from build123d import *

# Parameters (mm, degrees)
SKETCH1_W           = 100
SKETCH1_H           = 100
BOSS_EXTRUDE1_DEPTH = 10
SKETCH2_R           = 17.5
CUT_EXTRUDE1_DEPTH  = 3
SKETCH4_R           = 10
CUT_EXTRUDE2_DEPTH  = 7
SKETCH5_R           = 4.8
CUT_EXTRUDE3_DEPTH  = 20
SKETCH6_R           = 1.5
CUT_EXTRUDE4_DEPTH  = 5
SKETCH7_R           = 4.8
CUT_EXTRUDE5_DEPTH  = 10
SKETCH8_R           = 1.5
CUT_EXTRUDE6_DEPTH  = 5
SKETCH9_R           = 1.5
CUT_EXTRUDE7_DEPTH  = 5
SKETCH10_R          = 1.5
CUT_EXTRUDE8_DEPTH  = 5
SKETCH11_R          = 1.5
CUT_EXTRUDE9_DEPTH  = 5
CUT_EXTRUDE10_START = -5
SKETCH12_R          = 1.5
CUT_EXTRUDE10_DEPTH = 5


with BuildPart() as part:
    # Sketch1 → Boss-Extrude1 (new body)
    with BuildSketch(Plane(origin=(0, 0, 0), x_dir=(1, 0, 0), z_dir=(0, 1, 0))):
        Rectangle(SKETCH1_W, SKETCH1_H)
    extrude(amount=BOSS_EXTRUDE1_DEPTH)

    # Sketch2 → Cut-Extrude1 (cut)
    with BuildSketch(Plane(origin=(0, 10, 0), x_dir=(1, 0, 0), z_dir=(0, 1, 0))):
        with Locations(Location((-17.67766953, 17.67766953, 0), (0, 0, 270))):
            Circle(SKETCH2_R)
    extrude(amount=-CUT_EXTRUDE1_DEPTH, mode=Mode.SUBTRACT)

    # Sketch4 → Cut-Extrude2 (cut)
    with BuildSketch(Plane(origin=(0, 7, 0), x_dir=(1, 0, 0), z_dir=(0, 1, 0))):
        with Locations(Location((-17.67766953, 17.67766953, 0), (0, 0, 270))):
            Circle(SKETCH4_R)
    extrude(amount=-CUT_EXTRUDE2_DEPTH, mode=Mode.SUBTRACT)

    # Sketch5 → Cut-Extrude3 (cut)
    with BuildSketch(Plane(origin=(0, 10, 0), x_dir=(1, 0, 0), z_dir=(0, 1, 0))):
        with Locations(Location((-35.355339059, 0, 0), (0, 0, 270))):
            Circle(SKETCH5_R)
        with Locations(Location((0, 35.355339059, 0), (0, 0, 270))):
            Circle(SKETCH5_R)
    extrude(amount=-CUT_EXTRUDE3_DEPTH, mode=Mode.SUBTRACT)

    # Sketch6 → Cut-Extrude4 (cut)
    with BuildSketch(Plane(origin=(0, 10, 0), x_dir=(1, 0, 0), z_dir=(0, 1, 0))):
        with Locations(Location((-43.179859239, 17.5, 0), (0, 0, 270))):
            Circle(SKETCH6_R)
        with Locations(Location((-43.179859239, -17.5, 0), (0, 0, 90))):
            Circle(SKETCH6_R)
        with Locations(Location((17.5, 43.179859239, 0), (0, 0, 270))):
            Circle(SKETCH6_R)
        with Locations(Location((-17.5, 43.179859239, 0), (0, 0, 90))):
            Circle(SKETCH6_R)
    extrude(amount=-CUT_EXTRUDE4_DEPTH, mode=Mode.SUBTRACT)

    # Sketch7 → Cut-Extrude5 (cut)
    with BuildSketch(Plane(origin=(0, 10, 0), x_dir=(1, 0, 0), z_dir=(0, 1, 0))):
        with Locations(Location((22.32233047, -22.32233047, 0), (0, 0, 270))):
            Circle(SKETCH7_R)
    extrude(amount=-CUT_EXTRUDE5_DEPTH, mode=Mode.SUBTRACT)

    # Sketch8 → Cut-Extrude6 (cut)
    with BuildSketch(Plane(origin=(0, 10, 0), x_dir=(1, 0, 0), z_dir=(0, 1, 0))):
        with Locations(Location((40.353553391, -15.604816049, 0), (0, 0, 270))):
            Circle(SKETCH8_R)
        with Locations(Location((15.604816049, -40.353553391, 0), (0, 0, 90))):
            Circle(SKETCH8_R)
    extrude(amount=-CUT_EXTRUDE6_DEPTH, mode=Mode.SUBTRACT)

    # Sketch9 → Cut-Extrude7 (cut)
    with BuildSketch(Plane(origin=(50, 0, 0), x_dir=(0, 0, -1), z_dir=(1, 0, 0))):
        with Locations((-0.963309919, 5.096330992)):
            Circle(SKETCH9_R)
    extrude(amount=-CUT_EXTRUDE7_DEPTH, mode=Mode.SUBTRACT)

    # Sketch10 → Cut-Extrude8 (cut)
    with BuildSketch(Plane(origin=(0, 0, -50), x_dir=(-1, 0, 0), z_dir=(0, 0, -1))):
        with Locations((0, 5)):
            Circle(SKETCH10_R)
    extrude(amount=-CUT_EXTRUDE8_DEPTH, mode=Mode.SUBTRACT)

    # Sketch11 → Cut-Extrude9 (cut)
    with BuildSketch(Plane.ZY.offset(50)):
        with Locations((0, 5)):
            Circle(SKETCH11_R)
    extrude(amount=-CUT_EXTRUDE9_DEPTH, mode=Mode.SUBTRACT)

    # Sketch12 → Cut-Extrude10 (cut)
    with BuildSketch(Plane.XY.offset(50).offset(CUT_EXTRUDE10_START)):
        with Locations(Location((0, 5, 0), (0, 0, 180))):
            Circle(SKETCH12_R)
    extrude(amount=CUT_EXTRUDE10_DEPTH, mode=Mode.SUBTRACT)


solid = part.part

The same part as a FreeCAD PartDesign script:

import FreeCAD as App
import Part
import Sketcher
from FreeCAD import Vector


def add_polygon(sketch, points):
    """Adds a closed chain of lines whose ends are joined by coincident constraints."""
    first, n = sketch.GeometryCount, len(points)
    for a, b in zip(points, points[1:] + points[:1]):
        sketch.addGeometry(Part.LineSegment(App.Vector(*a, 0), App.Vector(*b, 0)), False)
    for i in range(n):
        sketch.addConstraint(Sketcher.Constraint("Coincident", first + i, 2, first + (i + 1) % n, 1))

doc = App.newDocument("Part")
params = doc.addObject("Spreadsheet::Sheet", "Params")
for row, (alias, value) in enumerate([
    ("sketch1_width", "100 mm"),
    ("pad1_length", "10 mm"),
    ("sketch2_diameter", "35 mm"),
    ("pocket1_length", "3 mm"),
    ("sketch3_diameter", "20 mm"),
    ("pocket2_length", "7 mm"),
    ("sketch4_diameter", "9.6 mm"),
    ("pocket3_length", "20 mm"),
    ("sketch5_diameter", "3 mm"),
    ("pocket4_length", "5 mm"),
    ("sketch6_diameter", "9.6 mm"),
    ("pocket5_length", "10 mm"),
    ("sketch7_diameter", "3 mm"),
    ("pocket6_length", "5 mm"),
    ("sketch8_diameter", "3 mm"),
    ("pocket7_length", "5 mm"),
    ("sketch9_diameter", "3 mm"),
    ("pocket8_length", "5 mm"),
    ("sketch10_diameter", "3 mm"),
    ("pocket9_length", "5 mm"),
    ("sketch11_diameter", "3 mm"),
    ("pocket10_length", "5 mm"),
], start=1):
    params.set(f"A{row}", alias)
    params.set(f"B{row}", "=" + value)
    params.setAlias(f"B{row}", alias)

body = doc.addObject("PartDesign::Body", "Body")

# Sketch on XZ plane
sketch1 = doc.addObject("Sketcher::SketchObject", "Sketch")
body.addObject(sketch1)
sketch1.AttachmentSupport = (doc.XZ_Plane, [""])
sketch1.MapMode = "FlatFace"
add_polygon(sketch1, [(-50, -50), (-50, 50), (50, 50), (50, -50)])  # lines 0-3
sketch1.addConstraint(Sketcher.Constraint("Vertical", 0))
sketch1.addConstraint(Sketcher.Constraint("Horizontal", 1))
sketch1.addConstraint(Sketcher.Constraint("Vertical", 2))
sketch1.addConstraint(Sketcher.Constraint("Horizontal", 3))
sketch1.addConstraint(Sketcher.Constraint("Symmetric", 0, 2, 2, 2, -1, 1))
sketch1.addConstraint(Sketcher.Constraint("Equal", 3, 0))
sketch1.addConstraint(Sketcher.Constraint("DistanceX", 1, 1, 1, 2, 100.0))
sketch1.setExpression("Constraints[10]", "Params.sketch1_width")
pad1 = doc.addObject("PartDesign::Pad", "Pad")
body.addObject(pad1)
pad1.Profile = sketch1
pad1.setExpression("Length", "Params.pad1_length")
pad1.Reversed = True

# Sketch on XZ plane
sketch2 = doc.addObject("Sketcher::SketchObject", "Sketch001")
body.addObject(sketch2)
sketch2.AttachmentSupport = (doc.XZ_Plane, [""])
sketch2.MapMode = "FlatFace"
sketch2.AttachmentOffset = App.Placement(Vector(0, 0, -10), App.Rotation())
sketch2.addGeometry(Part.Circle(Vector(-18, -18, 0), Vector(0, 0, 1), 18), False)
sketch2.addConstraint(Sketcher.Constraint("Diameter", 0, 35.0))
sketch2.addConstraint(Sketcher.Constraint("DistanceX", 0, 3, -1, 1, 17.67767))
sketch2.addConstraint(Sketcher.Constraint("DistanceY", 0, 3, -1, 1, 17.67767))
sketch2.setExpression("Constraints[0]", "Params.sketch2_diameter")
pocket1 = doc.addObject("PartDesign::Pocket", "Pocket")
body.addObject(pocket1)
pocket1.Profile = sketch2
pocket1.setExpression("Length", "Params.pocket1_length")
pocket1.Reversed = True

# Sketch on XZ plane
sketch3 = doc.addObject("Sketcher::SketchObject", "Sketch002")
body.addObject(sketch3)
sketch3.AttachmentSupport = (doc.XZ_Plane, [""])
sketch3.MapMode = "FlatFace"
sketch3.AttachmentOffset = App.Placement(Vector(0, 0, -7), App.Rotation())
sketch3.addGeometry(Part.Circle(Vector(-18, -18, 0), Vector(0, 0, 1), 10), False)
sketch3.addConstraint(Sketcher.Constraint("Diameter", 0, 20.0))
sketch3.addConstraint(Sketcher.Constraint("DistanceX", 0, 3, -1, 1, 17.67767))
sketch3.addConstraint(Sketcher.Constraint("DistanceY", 0, 3, -1, 1, 17.67767))
sketch3.setExpression("Constraints[0]", "Params.sketch3_diameter")
pocket2 = doc.addObject("PartDesign::Pocket", "Pocket001")
body.addObject(pocket2)
pocket2.Profile = sketch3
pocket2.setExpression("Length", "Params.pocket2_length")
pocket2.Reversed = True

# Sketch on XZ plane
sketch4 = doc.addObject("Sketcher::SketchObject", "Sketch003")
body.addObject(sketch4)
sketch4.AttachmentSupport = (doc.XZ_Plane, [""])
sketch4.MapMode = "FlatFace"
sketch4.AttachmentOffset = App.Placement(Vector(0, 0, -10), App.Rotation())
sketch4.addGeometry(Part.Circle(Vector(-35.4, 0, 0), Vector(0, 0, 1), 4.8), False)
sketch4.addGeometry(Part.Circle(Vector(0, -35.4, 0), Vector(0, 0, 1), 4.8), False)
sketch4.addConstraint(Sketcher.Constraint("Equal", 0, 1))
sketch4.addConstraint(Sketcher.Constraint("PointOnObject", 0, 3, -1))
sketch4.addConstraint(Sketcher.Constraint("PointOnObject", 1, 3, -2))
sketch4.addConstraint(Sketcher.Constraint("Diameter", 0, 9.6))
sketch4.addConstraint(Sketcher.Constraint("DistanceX", 0, 3, -1, 1, 35.355339))
sketch4.addConstraint(Sketcher.Constraint("DistanceY", 1, 3, -1, 1, 35.355339))
sketch4.setExpression("Constraints[3]", "Params.sketch4_diameter")
pocket3 = doc.addObject("PartDesign::Pocket", "Pocket002")
body.addObject(pocket3)
pocket3.Profile = sketch4
pocket3.setExpression("Length", "Params.pocket3_length")
pocket3.Reversed = True

# Sketch on XZ plane
sketch5 = doc.addObject("Sketcher::SketchObject", "Sketch004")
body.addObject(sketch5)
sketch5.AttachmentSupport = (doc.XZ_Plane, [""])
sketch5.MapMode = "FlatFace"
sketch5.AttachmentOffset = App.Placement(Vector(0, 0, -10), App.Rotation())
sketch5.addGeometry(Part.Circle(Vector(-43.2, -17.5, 0), Vector(0, 0, 1), 1.5), False)
sketch5.addGeometry(Part.Circle(Vector(-43.2, 17.5, 0), Vector(0, 0, 1), 1.5), False)
sketch5.addGeometry(Part.Circle(Vector(17.5, -43.2, 0), Vector(0, 0, 1), 1.5), False)
sketch5.addGeometry(Part.Circle(Vector(-17.5, -43.2, 0), Vector(0, 0, 1), 1.5), False)
sketch5.addConstraint(Sketcher.Constraint("Equal", 0, 1))
sketch5.addConstraint(Sketcher.Constraint("Equal", 1, 2))
sketch5.addConstraint(Sketcher.Constraint("Equal", 2, 3))
sketch5.addConstraint(Sketcher.Constraint("Symmetric", 2, 3, 3, 3, -2))
sketch5.addConstraint(Sketcher.Constraint("Symmetric", 0, 3, 1, 3, -1))
sketch5.addConstraint(Sketcher.Constraint("Diameter", 0, 3.0))
sketch5.addConstraint(Sketcher.Constraint("DistanceY", 0, 3, 1, 3, 35.0))
sketch5.addConstraint(Sketcher.Constraint("DistanceX", 3, 3, 2, 3, 35.0))
sketch5.addConstraint(Sketcher.Constraint("DistanceX", 0, 3, -1, 1, 43.179859))
sketch5.addConstraint(Sketcher.Constraint("DistanceY", 2, 3, -1, 1, 43.179859))
sketch5.setExpression("Constraints[5]", "Params.sketch5_diameter")
pocket4 = doc.addObject("PartDesign::Pocket", "Pocket003")
body.addObject(pocket4)
pocket4.Profile = sketch5
pocket4.setExpression("Length", "Params.pocket4_length")
pocket4.Reversed = True

# Sketch on XZ plane
sketch6 = doc.addObject("Sketcher::SketchObject", "Sketch005")
body.addObject(sketch6)
sketch6.AttachmentSupport = (doc.XZ_Plane, [""])
sketch6.MapMode = "FlatFace"
sketch6.AttachmentOffset = App.Placement(Vector(0, 0, -10), App.Rotation())
sketch6.addGeometry(Part.Circle(Vector(22.3, 22.3, 0), Vector(0, 0, 1), 4.8), False)
sketch6.addConstraint(Sketcher.Constraint("Diameter", 0, 9.6))
sketch6.addConstraint(Sketcher.Constraint("DistanceX", -1, 1, 0, 3, 22.32233))
sketch6.addConstraint(Sketcher.Constraint("DistanceY", -1, 1, 0, 3, 22.32233))
sketch6.setExpression("Constraints[0]", "Params.sketch6_diameter")
pocket5 = doc.addObject("PartDesign::Pocket", "Pocket004")
body.addObject(pocket5)
pocket5.Profile = sketch6
pocket5.setExpression("Length", "Params.pocket5_length")
pocket5.Reversed = True

# Sketch on XZ plane
sketch7 = doc.addObject("Sketcher::SketchObject", "Sketch006")
body.addObject(sketch7)
sketch7.AttachmentSupport = (doc.XZ_Plane, [""])
sketch7.MapMode = "FlatFace"
sketch7.AttachmentOffset = App.Placement(Vector(0, 0, -10), App.Rotation())
sketch7.addGeometry(Part.Circle(Vector(40.4, 15.6, 0), Vector(0, 0, 1), 1.5), False)
sketch7.addGeometry(Part.Circle(Vector(15.6, 40.4, 0), Vector(0, 0, 1), 1.5), False)
sketch7.addConstraint(Sketcher.Constraint("Equal", 0, 1))
sketch7.addConstraint(Sketcher.Constraint("Diameter", 0, 3.0))
sketch7.addConstraint(Sketcher.Constraint("DistanceX", -1, 1, 0, 3, 40.353553))
sketch7.addConstraint(Sketcher.Constraint("DistanceY", -1, 1, 0, 3, 15.604816))
sketch7.addConstraint(Sketcher.Constraint("DistanceX", -1, 1, 1, 3, 15.604816))
sketch7.addConstraint(Sketcher.Constraint("DistanceY", -1, 1, 1, 3, 40.353553))
sketch7.setExpression("Constraints[1]", "Params.sketch7_diameter")
pocket6 = doc.addObject("PartDesign::Pocket", "Pocket005")
body.addObject(pocket6)
pocket6.Profile = sketch7
pocket6.setExpression("Length", "Params.pocket6_length")
pocket6.Reversed = True

# Sketch on YZ plane
sketch8 = doc.addObject("Sketcher::SketchObject", "Sketch007")
body.addObject(sketch8)
sketch8.AttachmentSupport = (doc.YZ_Plane, [""])
sketch8.MapMode = "FlatFace"
sketch8.AttachmentOffset = App.Placement(Vector(0, 0, 50), App.Rotation())
sketch8.addGeometry(Part.Circle(Vector(5.1, 1, 0), Vector(0, 0, 1), 1.5), False)
sketch8.addConstraint(Sketcher.Constraint("Diameter", 0, 3.0))
sketch8.addConstraint(Sketcher.Constraint("DistanceX", -1, 1, 0, 3, 5.096331))
sketch8.addConstraint(Sketcher.Constraint("DistanceY", -1, 1, 0, 3, 0.96331))
sketch8.setExpression("Constraints[0]", "Params.sketch8_diameter")
pocket7 = doc.addObject("PartDesign::Pocket", "Pocket006")
body.addObject(pocket7)
pocket7.Profile = sketch8
pocket7.setExpression("Length", "Params.pocket7_length")

# Sketch on XY plane
sketch9 = doc.addObject("Sketcher::SketchObject", "Sketch008")
body.addObject(sketch9)
sketch9.AttachmentSupport = (doc.XY_Plane, [""])
sketch9.MapMode = "FlatFace"
sketch9.AttachmentOffset = App.Placement(Vector(0, 0, -50), App.Rotation())
sketch9.addGeometry(Part.Circle(Vector(0, 5, 0), Vector(0, 0, 1), 1.5), False)
sketch9.addConstraint(Sketcher.Constraint("PointOnObject", 0, 3, -2))
sketch9.addConstraint(Sketcher.Constraint("Diameter", 0, 3.0))
sketch9.addConstraint(Sketcher.Constraint("DistanceY", -1, 1, 0, 3, 5.0))
sketch9.setExpression("Constraints[1]", "Params.sketch9_diameter")
pocket8 = doc.addObject("PartDesign::Pocket", "Pocket007")
body.addObject(pocket8)
pocket8.Profile = sketch9
pocket8.setExpression("Length", "Params.pocket8_length")
pocket8.Reversed = True

# Sketch on YZ plane
sketch10 = doc.addObject("Sketcher::SketchObject", "Sketch009")
body.addObject(sketch10)
sketch10.AttachmentSupport = (doc.YZ_Plane, [""])
sketch10.MapMode = "FlatFace"
sketch10.AttachmentOffset = App.Placement(Vector(0, 0, -50), App.Rotation())
sketch10.addGeometry(Part.Circle(Vector(5, 0, 0), Vector(0, 0, 1), 1.5), False)
sketch10.addConstraint(Sketcher.Constraint("PointOnObject", 0, 3, -1))
sketch10.addConstraint(Sketcher.Constraint("Diameter", 0, 3.0))
sketch10.addConstraint(Sketcher.Constraint("DistanceX", -1, 1, 0, 3, 5.0))
sketch10.setExpression("Constraints[1]", "Params.sketch10_diameter")
pocket9 = doc.addObject("PartDesign::Pocket", "Pocket008")
body.addObject(pocket9)
pocket9.Profile = sketch10
pocket9.setExpression("Length", "Params.pocket9_length")
pocket9.Reversed = True

# Sketch on XY plane
sketch11 = doc.addObject("Sketcher::SketchObject", "Sketch010")
body.addObject(sketch11)
sketch11.AttachmentSupport = (doc.XY_Plane, [""])
sketch11.MapMode = "FlatFace"
sketch11.AttachmentOffset = App.Placement(Vector(0, 0, 45), App.Rotation())
sketch11.addGeometry(Part.Circle(Vector(0, 5, 0), Vector(0, 0, 1), 1.5), False)
sketch11.addConstraint(Sketcher.Constraint("PointOnObject", 0, 3, -2))
sketch11.addConstraint(Sketcher.Constraint("Diameter", 0, 3.0))
sketch11.addConstraint(Sketcher.Constraint("DistanceY", -1, 1, 0, 3, 5.0))
sketch11.setExpression("Constraints[1]", "Params.sketch11_diameter")
pocket10 = doc.addObject("PartDesign::Pocket", "Pocket009")
body.addObject(pocket10)
pocket10.Profile = sketch11
pocket10.setExpression("Length", "Params.pocket10_length")
pocket10.Reversed = True

doc.recompute()
